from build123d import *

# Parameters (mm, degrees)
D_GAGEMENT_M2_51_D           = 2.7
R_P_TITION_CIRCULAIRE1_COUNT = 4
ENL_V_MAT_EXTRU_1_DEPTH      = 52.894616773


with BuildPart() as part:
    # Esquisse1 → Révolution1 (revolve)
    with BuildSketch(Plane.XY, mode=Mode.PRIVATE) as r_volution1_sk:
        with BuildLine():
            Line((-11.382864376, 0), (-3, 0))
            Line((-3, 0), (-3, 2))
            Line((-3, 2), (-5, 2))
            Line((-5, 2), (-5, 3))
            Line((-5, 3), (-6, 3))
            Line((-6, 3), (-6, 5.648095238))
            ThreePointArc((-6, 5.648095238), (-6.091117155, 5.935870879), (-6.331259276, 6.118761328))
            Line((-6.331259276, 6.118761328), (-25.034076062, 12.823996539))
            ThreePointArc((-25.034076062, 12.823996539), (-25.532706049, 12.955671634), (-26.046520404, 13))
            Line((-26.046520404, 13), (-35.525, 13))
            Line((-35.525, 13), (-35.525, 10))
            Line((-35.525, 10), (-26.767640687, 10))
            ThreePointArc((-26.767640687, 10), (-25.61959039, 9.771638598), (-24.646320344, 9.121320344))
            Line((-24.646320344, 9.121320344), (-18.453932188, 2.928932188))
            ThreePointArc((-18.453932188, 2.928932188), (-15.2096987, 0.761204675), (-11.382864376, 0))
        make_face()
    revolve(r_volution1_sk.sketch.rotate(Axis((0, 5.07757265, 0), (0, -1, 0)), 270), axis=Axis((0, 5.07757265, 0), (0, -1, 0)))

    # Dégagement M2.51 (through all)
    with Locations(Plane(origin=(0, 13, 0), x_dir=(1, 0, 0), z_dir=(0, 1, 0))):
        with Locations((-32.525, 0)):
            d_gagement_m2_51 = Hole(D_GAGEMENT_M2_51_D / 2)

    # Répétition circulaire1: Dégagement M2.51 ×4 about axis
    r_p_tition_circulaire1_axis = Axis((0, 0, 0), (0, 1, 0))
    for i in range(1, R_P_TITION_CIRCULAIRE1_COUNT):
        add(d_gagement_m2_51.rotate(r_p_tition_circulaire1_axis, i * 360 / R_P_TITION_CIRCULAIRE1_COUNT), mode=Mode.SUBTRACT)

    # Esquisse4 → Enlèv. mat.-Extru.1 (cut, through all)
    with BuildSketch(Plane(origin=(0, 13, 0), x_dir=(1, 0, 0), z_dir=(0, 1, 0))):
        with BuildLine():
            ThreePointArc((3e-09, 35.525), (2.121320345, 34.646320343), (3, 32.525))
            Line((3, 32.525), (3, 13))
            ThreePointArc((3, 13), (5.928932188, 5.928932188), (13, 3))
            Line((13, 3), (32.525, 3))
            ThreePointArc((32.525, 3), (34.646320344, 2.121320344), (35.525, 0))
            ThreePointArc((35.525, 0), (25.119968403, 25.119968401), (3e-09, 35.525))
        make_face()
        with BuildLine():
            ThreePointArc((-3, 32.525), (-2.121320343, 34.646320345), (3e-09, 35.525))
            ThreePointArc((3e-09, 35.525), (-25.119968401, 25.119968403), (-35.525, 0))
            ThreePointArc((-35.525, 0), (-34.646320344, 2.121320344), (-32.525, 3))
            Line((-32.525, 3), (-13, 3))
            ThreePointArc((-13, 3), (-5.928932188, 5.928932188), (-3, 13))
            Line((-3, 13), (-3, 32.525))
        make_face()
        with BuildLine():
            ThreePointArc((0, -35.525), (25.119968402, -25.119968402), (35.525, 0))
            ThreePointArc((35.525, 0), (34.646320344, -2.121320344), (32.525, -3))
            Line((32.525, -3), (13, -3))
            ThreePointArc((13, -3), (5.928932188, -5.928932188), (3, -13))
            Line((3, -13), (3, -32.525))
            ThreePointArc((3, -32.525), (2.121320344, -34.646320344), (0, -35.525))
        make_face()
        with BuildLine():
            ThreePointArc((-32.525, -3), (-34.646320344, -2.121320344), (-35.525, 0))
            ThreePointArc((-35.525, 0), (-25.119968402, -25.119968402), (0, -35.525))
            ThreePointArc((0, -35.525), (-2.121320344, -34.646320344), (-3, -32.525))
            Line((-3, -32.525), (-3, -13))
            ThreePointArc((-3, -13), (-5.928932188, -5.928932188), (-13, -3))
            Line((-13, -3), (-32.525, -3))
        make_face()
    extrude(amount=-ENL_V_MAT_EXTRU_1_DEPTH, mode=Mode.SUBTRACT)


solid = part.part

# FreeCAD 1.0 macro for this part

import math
import FreeCAD as App
import Part
import Sketcher

V = App.Vector
Q = App.Units.Quantity

doc = App.newDocument("Part")
body = doc.addObject("PartDesign::Body", "Body")

sketch1 = body.newObject("Sketcher::SketchObject", "Sketch")
sketch1.AttachmentSupport = (doc.getObject("XY_Plane"), [""])
sketch1.MapMode = "FlatFace"
sketch1.addGeometry(Part.LineSegment(V(-11.382864, 0, 0), V(-3, 0, 0)), False)
sketch1.addGeometry(Part.LineSegment(V(-3, 0, 0), V(-3, 2, 0)), False)
sketch1.addGeometry(Part.LineSegment(V(-3, 2, 0), V(-5, 2, 0)), False)
sketch1.addGeometry(Part.LineSegment(V(-5, 2, 0), V(-5, 3, 0)), False)
sketch1.addGeometry(Part.LineSegment(V(-5, 3, 0), V(-6, 3, 0)), False)
sketch1.addGeometry(Part.LineSegment(V(-6, 3, 0), V(-6, 5.648095, 0)), False)
sketch1.addGeometry(Part.ArcOfCircle(Part.Circle(V(-6.5, 5.648095, 0), V(0, 0, 1), 0.5), math.radians(0), math.radians(70.276496)), False)
sketch1.addGeometry(Part.LineSegment(V(-6.331259, 6.118761, 0), V(-25.034076, 12.823997, 0)), False)
sketch1.addGeometry(Part.ArcOfCircle(Part.Circle(V(-26.04652, 10, 0), V(0, 0, 1), 3), math.radians(70.276496), math.radians(90)), False)
sketch1.addGeometry(Part.LineSegment(V(-26.04652, 13, 0), V(-35.525, 13, 0)), False)
sketch1.addGeometry(Part.LineSegment(V(-35.525, 13, 0), V(-35.525, 10, 0)), False)
sketch1.addGeometry(Part.LineSegment(V(-35.525, 10, 0), V(-26.767641, 10, 0)), False)
sketch1.addGeometry(Part.ArcOfCircle(Part.Circle(V(-26.767641, 7, 0), V(0, 0, 1), 3), math.radians(45), math.radians(90)), False)
sketch1.addGeometry(Part.LineSegment(V(-24.64632, 9.12132, 0), V(-18.453932, 2.928932, 0)), False)
sketch1.addGeometry(Part.ArcOfCircle(Part.Circle(V(-11.382864, 10, 0), V(0, 0, 1), 10), math.radians(-135), math.radians(-90)), False)
sketch1.addConstraint(Sketcher.Constraint("Coincident", 0, 2, 1, 1))
sketch1.addConstraint(Sketcher.Constraint("Coincident", 1, 2, 2, 1))
sketch1.addConstraint(Sketcher.Constraint("Coincident", 2, 2, 3, 1))
sketch1.addConstraint(Sketcher.Constraint("Coincident", 3, 2, 4, 1))
sketch1.addConstraint(Sketcher.Constraint("Coincident", 4, 2, 5, 1))
sketch1.addConstraint(Sketcher.Constraint("Tangent", 5, 2, 6, 1))
sketch1.addConstraint(Sketcher.Constraint("Tangent", 6, 2, 7, 1))
sketch1.addConstraint(Sketcher.Constraint("Tangent", 7, 2, 8, 1))
sketch1.addConstraint(Sketcher.Constraint("Tangent", 8, 2, 9, 1))
sketch1.addConstraint(Sketcher.Constraint("Coincident", 9, 2, 10, 1))
sketch1.addConstraint(Sketcher.Constraint("Coincident", 10, 2, 11, 1))
sketch1.addConstraint(Sketcher.Constraint("Tangent", 11, 2, 12, 2))
sketch1.addConstraint(Sketcher.Constraint("Tangent", 12, 1, 13, 1))
sketch1.addConstraint(Sketcher.Constraint("Tangent", 13, 2, 14, 1))
sketch1.addConstraint(Sketcher.Constraint("Tangent", 14, 2, 0, 1))
sketch1.addConstraint(Sketcher.Constraint("Horizontal", 0))
sketch1.addConstraint(Sketcher.Constraint("Vertical", 1))
sketch1.addConstraint(Sketcher.Constraint("Horizontal", 2))
sketch1.addConstraint(Sketcher.Constraint("Vertical", 3))
sketch1.addConstraint(Sketcher.Constraint("Horizontal", 4))
sketch1.addConstraint(Sketcher.Constraint("Vertical", 5))
sketch1.addConstraint(Sketcher.Constraint("Horizontal", 9))
sketch1.addConstraint(Sketcher.Constraint("Vertical", 10))
sketch1.addConstraint(Sketcher.Constraint("Horizontal", 11))
sketch1.addConstraint(Sketcher.Constraint("Equal", 8, 12))
sketch1.addConstraint(Sketcher.Constraint("PointOnObject", 0, 2, -1))
sketch1.addConstraint(Sketcher.Constraint("Horizontal", 8, 3, 14, 3))
sketch1.addConstraint(Sketcher.Constraint("Horizontal", 14, 3, 10, 2))
sketch1.addConstraint(Sketcher.Constraint("Equal", 2, 1))
sketch1.addConstraint(Sketcher.Constraint("Equal", 4, 3))
sketch1.addConstraint(Sketcher.Constraint("Radius", 8, Q("3 mm")))
sketch1.addConstraint(Sketcher.Constraint("Radius", 14, Q("10 mm")))
sketch1.addConstraint(Sketcher.Constraint("Radius", 6, Q("0.5 mm")))
sketch1.addConstraint(Sketcher.Constraint("DistanceX", 2, 2, 2, 1, Q("2 mm")))
sketch1.addConstraint(Sketcher.Constraint("DistanceX", 4, 2, 4, 1, Q("1 mm")))
sketch1.addConstraint(Sketcher.Constraint("Angle", 13, Q("-45 deg")))
sketch1.addConstraint(Sketcher.Constraint("DistanceX", 0, 2, -1, 1, Q("3 mm")))
sketch1.addConstraint(Sketcher.Constraint("DistanceX", 9, 2, -1, 1, Q("35.525 mm")))
sketch1.addConstraint(Sketcher.Constraint("DistanceX", 9, 2, 9, 1, Q("9.47848 mm")))
sketch1.addConstraint(Sketcher.Constraint("DistanceX", 11, 1, 11, 2, Q("8.757359 mm")))
sketch1.addConstraint(Sketcher.Constraint("DistanceY", 6, 3, 7, 2, Q("7.175901 mm")))
revolution = body.newObject("PartDesign::Revolution", "Revolution")
revolution.Profile = sketch1
revolution.ReferenceAxis = (sketch1, ["V_Axis"])
revolution.Angle = 360

sketch2 = body.newObject("Sketcher::SketchObject", "Sketch001")
sketch2.AttachmentSupport = (doc.getObject("XZ_Plane"), [""])
sketch2.MapMode = "FlatFace"
sketch2.AttachmentOffset = App.Placement(V(0, 0, -13), App.Rotation())
sketch2.addGeometry(Part.Circle(V(-32.525, 0, 0), V(0, 0, 1), 1.35), False)
sketch2.addConstraint(Sketcher.Constraint("PointOnObject", 0, 3, -1))
sketch2.addConstraint(Sketcher.Constraint("Diameter", 0, Q("2.7 mm")))
sketch2.addConstraint(Sketcher.Constraint("DistanceX", 0, 3, -1, 1, Q("32.525 mm")))
doc.recompute()
hole = body.newObject("PartDesign::Hole", "Hole")
hole.Profile = sketch2
hole.ThreadType = "None"
hole.Diameter = 2.7
hole.DepthType = "ThroughAll"
hole.Reversed = True
doc.recompute()

polarpattern = body.newObject("PartDesign::PolarPattern", "PolarPattern")
polarpattern.Originals = [hole]
polarpattern.Axis = (doc.getObject("Y_Axis"), [""])
polarpattern.Angle = 360
polarpattern.Occurrences = 4
body.Tip = polarpattern

sketch3 = body.newObject("Sketcher::SketchObject", "Sketch002")
sketch3.AttachmentSupport = (doc.getObject("XZ_Plane"), [""])
sketch3.MapMode = "FlatFace"
sketch3.AttachmentOffset = App.Placement(V(0, 0, -13), App.Rotation())
sketch3.addGeometry(Part.ArcOfCircle(Part.Circle(V(0, -32.525, 0), V(0, 0, 1), 3), math.radians(-90), math.radians(0)), False)
sketch3.addGeometry(Part.LineSegment(V(3, -32.525, 0), V(3, -13, 0)), False)
sketch3.addGeometry(Part.ArcOfCircle(Part.Circle(V(13, -13, 0), V(0, 0, 1), 10), math.radians(90), math.radians(180)), False)
sketch3.addGeometry(Part.LineSegment(V(13, -3, 0), V(32.525, -3, 0)), False)
sketch3.addGeometry(Part.ArcOfCircle(Part.Circle(V(32.525, 0, 0), V(0, 0, 1), 3), math.radians(-90), math.radians(0)), False)
sketch3.addGeometry(Part.ArcOfCircle(Part.Circle(V(0, 0, 0), V(0, 0, 1), 35.525), math.radians(-90), math.radians(0)), False)
sketch3.addGeometry(Part.ArcOfCircle(Part.Circle(V(0, -32.525, 0), V(0, 0, 1), 3), math.radians(180), math.radians(270)), False)
sketch3.addGeometry(Part.ArcOfCircle(Part.Circle(V(0, 0, 0), V(0, 0, 1), 35.525), math.radians(180), math.radians(270)), False)
sketch3.addGeometry(Part.ArcOfCircle(Part.Circle(V(-32.525, 0, 0), V(0, 0, 1), 3), math.radians(180), math.radians(270)), False)
sketch3.addGeometry(Part.LineSegment(V(-32.525, -3, 0), V(-13, -3, 0)), False)
sketch3.addGeometry(Part.ArcOfCircle(Part.Circle(V(-13, -13, 0), V(0, 0, 1), 10), math.radians(0), math.radians(90)), False)
sketch3.addGeometry(Part.LineSegment(V(-3, -13, 0), V(-3, -32.525, 0)), False)
sketch3.addGeometry(Part.ArcOfCircle(Part.Circle(V(0, 0, 0), V(0, 0, 1), 35.525), math.radians(0), math.radians(90)), False)
sketch3.addGeometry(Part.ArcOfCircle(Part.Circle(V(32.525, 0, 0), V(0, 0, 1), 3), math.radians(0), math.radians(90)), False)
sketch3.addGeometry(Part.LineSegment(V(32.525, 3, 0), V(13, 3, 0)), False)
sketch3.addGeometry(Part.ArcOfCircle(Part.Circle(V(13, 13, 0), V(0, 0, 1), 10), math.radians(180), math.radians(270)), False)
sketch3.addGeometry(Part.LineSegment(V(3, 13, 0), V(3, 32.525, 0)), False)
sketch3.addGeometry(Part.ArcOfCircle(Part.Circle(V(0, 32.525, 0), V(0, 0, 1), 3), math.radians(0), math.radians(90)), False)
sketch3.addGeometry(Part.ArcOfCircle(Part.Circle(V(-32.525, 0, 0), V(0, 0, 1), 3), math.radians(90), math.radians(180)), False)
sketch3.addGeometry(Part.ArcOfCircle(Part.Circle(V(0, 0, 0), V(0, 0, 1), 35.525), math.radians(90), math.radians(180)), False)
sketch3.addGeometry(Part.ArcOfCircle(Part.Circle(V(0, 32.525, 0), V(0, 0, 1), 3), math.radians(90), math.radians(180)), False)
sketch3.addGeometry(Part.LineSegment(V(-3, 32.525, 0), V(-3, 13, 0)), False)
sketch3.addGeometry(Part.ArcOfCircle(Part.Circle(V(-13, 13, 0), V(0, 0, 1), 10), math.radians(-90), math.radians(0)), False)
sketch3.addGeometry(Part.LineSegment(V(-13, 3, 0), V(-32.525, 3, 0)), False)
sketch3.addConstraint(Sketcher.Constraint("Tangent", 0, 2, 1, 1))
sketch3.addConstraint(Sketcher.Constraint("Tangent", 1, 2, 2, 2))
sketch3.addConstraint(Sketcher.Constraint("Tangent", 2, 1, 3, 1))
sketch3.addConstraint(Sketcher.Constraint("Tangent", 3, 2, 4, 1))
sketch3.addConstraint(Sketcher.Constraint("Tangent", 4, 2, 5, 2))
sketch3.addConstraint(Sketcher.Constraint("Tangent", 5, 1, 0, 1))
sketch3.addConstraint(Sketcher.Constraint("Tangent", 6, 2, 7, 2))
sketch3.addConstraint(Sketcher.Constraint("Tangent", 7, 1, 8, 1))
sketch3.addConstraint(Sketcher.Constraint("Tangent", 8, 2, 9, 1))
sketch3.addConstraint(Sketcher.Constraint("Tangent", 9, 2, 10, 2))
sketch3.addConstraint(Sketcher.Constraint("Tangent", 10, 1, 11, 1))
sketch3.addConstraint(Sketcher.Constraint("Tangent", 11, 2, 6, 1))
sketch3.addConstraint(Sketcher.Constraint("Tangent", 12, 1, 13, 1))
sketch3.addConstraint(Sketcher.Constraint("Tangent", 13, 2, 14, 1))
sketch3.addConstraint(Sketcher.Constraint("Tangent", 14, 2, 15, 2))
sketch3.addConstraint(Sketcher.Constraint("Tangent", 15, 1, 16, 1))
sketch3.addConstraint(Sketcher.Constraint("Tangent", 16, 2, 17, 1))
sketch3.addConstraint(Sketcher.Constraint("Tangent", 17, 2, 12, 2))
sketch3.addConstraint(Sketcher.Constraint("Tangent", 18, 2, 19, 2))
sketch3.addConstraint(Sketcher.Constraint("Tangent", 19, 1, 20, 1))
sketch3.addConstraint(Sketcher.Constraint("Tangent", 20, 2, 21, 1))
sketch3.addConstraint(Sketcher.Constraint("Tangent", 21, 2, 22, 2))
sketch3.addConstraint(Sketcher.Constraint("Tangent", 22, 1, 23, 1))
sketch3.addConstraint(Sketcher.Constraint("Tangent", 23, 2, 18, 1))
sketch3.addConstraint(Sketcher.Constraint("Vertical", 1))
sketch3.addConstraint(Sketcher.Constraint("Horizontal", 3))
sketch3.addConstraint(Sketcher.Constraint("Horizontal", 9))
sketch3.addConstraint(Sketcher.Constraint("Vertical", 11))
sketch3.addConstraint(Sketcher.Constraint("Horizontal", 14))
sketch3.addConstraint(Sketcher.Constraint("Vertical", 16))
sketch3.addConstraint(Sketcher.Constraint("Vertical", 21))
sketch3.addConstraint(Sketcher.Constraint("Horizontal", 23))
sketch3.addConstraint(Sketcher.Constraint("Coincident", 5, 3, -1, 1))
sketch3.addConstraint(Sketcher.Constraint("Coincident", 7, 3, -1, 1))
sketch3.addConstraint(Sketcher.Constraint("Coincident", 12, 3, -1, 1))
sketch3.addConstraint(Sketcher.Constraint("Coincident", 19, 3, -1, 1))
sketch3.addConstraint(Sketcher.Constraint("Coincident", 6, 3, 0, 3))
sketch3.addConstraint(Sketcher.Constraint("Coincident", 13, 3, 4, 3))
sketch3.addConstraint(Sketcher.Constraint("Coincident", 18, 3, 8, 3))
sketch3.addConstraint(Sketcher.Constraint("Coincident", 20, 3, 17, 3))
sketch3.addConstraint(Sketcher.Constraint("Equal", 0, 4))
sketch3.addConstraint(Sketcher.Constraint("Equal", 4, 6))
sketch3.addConstraint(Sketcher.Constraint("Equal", 6, 8))
sketch3.addConstraint(Sketcher.Constraint("Equal", 2, 10))
sketch3.addConstraint(Sketcher.Constraint("Equal", 7, 12))
sketch3.addConstraint(Sketcher.Constraint("Equal", 10, 15))
sketch3.addConstraint(Sketcher.Constraint("Equal", 13, 17))
sketch3.addConstraint(Sketcher.Constraint("Equal", 17, 18))
sketch3.addConstraint(Sketcher.Constraint("Equal", 15, 22))
sketch3.addConstraint(Sketcher.Constraint("Symmetric", 10, 3, 15, 3, -1, 1))
sketch3.addConstraint(Sketcher.Constraint("Symmetric", 2, 3, 10, 3, -2))
sketch3.addConstraint(Sketcher.Constraint("Radius", 0, Q("3 mm")))
sketch3.addConstraint(Sketcher.Constraint("Radius", 2, Q("10 mm")))
sketch3.addConstraint(Sketcher.Constraint("Radius", 5, Q("35.525 mm")))
pocket1 = body.newObject("PartDesign::Pocket", "Pocket")
pocket1.Profile = sketch3
pocket1.Type = "ThroughAll"
pocket1.Reversed = True

doc.recompute()
